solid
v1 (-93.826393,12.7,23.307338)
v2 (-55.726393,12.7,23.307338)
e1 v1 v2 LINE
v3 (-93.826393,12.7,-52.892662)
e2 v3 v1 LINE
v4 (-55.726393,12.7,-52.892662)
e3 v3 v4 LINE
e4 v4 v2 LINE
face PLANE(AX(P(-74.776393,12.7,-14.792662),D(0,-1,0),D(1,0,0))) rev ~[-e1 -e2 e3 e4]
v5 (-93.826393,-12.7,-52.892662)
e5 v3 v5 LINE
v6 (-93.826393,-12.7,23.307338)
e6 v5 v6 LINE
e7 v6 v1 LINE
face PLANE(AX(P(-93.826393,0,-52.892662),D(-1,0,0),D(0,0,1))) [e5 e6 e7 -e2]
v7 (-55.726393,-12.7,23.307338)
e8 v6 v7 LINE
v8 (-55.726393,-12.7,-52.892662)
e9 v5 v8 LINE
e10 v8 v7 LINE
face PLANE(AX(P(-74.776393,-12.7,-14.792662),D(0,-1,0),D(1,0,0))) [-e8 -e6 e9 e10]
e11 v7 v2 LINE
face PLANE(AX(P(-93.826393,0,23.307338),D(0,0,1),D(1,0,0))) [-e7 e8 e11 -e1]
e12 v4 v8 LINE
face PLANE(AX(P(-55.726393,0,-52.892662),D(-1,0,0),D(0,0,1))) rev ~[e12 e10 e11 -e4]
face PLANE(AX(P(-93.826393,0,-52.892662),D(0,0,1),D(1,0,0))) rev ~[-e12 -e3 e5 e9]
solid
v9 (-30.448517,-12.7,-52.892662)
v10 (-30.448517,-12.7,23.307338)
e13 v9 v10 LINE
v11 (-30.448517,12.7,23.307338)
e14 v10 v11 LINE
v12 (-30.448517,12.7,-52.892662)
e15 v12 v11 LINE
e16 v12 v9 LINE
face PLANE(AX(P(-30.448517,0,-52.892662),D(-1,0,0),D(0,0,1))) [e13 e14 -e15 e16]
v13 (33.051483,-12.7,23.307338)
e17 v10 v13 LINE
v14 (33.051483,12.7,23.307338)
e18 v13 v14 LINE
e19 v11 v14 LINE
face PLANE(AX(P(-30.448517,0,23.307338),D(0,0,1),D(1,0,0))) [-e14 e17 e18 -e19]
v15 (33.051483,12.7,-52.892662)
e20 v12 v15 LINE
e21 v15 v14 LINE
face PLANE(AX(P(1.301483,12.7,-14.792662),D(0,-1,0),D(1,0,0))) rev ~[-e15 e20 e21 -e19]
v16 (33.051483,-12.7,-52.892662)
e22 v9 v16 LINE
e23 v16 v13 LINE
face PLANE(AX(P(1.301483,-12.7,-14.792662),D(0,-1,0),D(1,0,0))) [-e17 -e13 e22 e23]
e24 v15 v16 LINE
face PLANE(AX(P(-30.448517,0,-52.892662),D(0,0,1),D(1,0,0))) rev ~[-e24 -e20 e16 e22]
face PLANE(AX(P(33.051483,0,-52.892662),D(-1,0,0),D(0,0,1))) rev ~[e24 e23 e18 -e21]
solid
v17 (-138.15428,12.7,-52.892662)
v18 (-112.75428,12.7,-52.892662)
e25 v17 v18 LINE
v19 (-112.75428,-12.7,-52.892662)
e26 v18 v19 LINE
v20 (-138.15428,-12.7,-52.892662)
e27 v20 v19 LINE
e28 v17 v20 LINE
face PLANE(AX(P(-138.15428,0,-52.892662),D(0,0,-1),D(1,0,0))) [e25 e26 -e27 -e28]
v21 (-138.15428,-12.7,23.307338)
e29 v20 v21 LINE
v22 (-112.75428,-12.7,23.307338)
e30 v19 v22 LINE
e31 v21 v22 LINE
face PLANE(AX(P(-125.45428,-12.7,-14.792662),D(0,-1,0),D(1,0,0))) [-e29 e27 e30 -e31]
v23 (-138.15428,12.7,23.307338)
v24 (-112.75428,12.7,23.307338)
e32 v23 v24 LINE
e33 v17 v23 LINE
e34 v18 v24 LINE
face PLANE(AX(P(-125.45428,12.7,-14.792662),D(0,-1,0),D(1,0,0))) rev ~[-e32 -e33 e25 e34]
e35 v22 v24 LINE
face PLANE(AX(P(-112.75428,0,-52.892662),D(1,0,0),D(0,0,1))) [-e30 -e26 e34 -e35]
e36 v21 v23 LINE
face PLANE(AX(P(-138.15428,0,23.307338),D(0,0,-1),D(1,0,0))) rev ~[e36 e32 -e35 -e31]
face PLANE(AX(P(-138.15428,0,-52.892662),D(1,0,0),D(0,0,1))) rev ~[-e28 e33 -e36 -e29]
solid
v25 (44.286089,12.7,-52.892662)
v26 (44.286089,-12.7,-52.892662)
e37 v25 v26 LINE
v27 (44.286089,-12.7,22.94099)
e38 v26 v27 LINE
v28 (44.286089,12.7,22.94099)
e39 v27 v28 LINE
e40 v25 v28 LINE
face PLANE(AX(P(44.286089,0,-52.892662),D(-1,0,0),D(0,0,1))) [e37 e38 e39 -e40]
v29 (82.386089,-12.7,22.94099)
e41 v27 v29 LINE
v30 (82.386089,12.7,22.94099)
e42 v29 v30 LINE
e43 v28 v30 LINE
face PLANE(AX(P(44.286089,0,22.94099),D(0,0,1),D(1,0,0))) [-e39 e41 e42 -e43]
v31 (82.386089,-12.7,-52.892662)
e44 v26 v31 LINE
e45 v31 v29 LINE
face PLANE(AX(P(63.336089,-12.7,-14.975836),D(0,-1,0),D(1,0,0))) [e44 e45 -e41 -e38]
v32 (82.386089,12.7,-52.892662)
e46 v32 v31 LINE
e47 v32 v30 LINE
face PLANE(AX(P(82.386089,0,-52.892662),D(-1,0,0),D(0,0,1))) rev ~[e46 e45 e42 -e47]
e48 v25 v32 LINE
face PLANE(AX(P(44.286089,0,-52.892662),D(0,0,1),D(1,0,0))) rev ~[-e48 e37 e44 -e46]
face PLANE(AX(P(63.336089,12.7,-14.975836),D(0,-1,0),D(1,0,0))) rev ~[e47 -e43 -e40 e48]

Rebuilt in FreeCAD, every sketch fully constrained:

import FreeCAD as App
import Part
import Sketcher
Q = App.Units.Quantity

doc = App.newDocument("Part")
params = doc.addObject("Spreadsheet::Sheet", "Params")
for row, (alias, value) in enumerate([
    ("sketch1_width", "1 in"),
    ("sketch1_height", "3 in"),
    ("sketch1_width2", "1.5 in"),
    ("sketch1_width3", "2.5 in"),
    ("pad1_length", "1 in"),
], start=1):
    params.set(f"A{row}", alias)
    params.set(f"B{row}", "=" + value)
    params.setAlias(f"B{row}", alias)

body = doc.addObject("PartDesign::Body", "Body")
body.AllowCompound = True

sketch1 = body.newObject("Sketcher::SketchObject", "Sketch")
sketch1.AttachmentSupport = (doc.getObject("XZ_Plane"), [""])
sketch1.MapMode = "FlatFace"
sketch1.addGeometry(Part.LineSegment(App.Vector(-94, 23, 0), App.Vector(-94, -53, 0)), False)
sketch1.addGeometry(Part.LineSegment(App.Vector(-94, -53, 0), App.Vector(-56, -53, 0)), False)
sketch1.addGeometry(Part.LineSegment(App.Vector(-56, -53, 0), App.Vector(-56, 23, 0)), False)
sketch1.addGeometry(Part.LineSegment(App.Vector(-56, 23, 0), App.Vector(-94, 23, 0)), False)
sketch1.addGeometry(Part.LineSegment(App.Vector(-30, 23, 0), App.Vector(-30, -53, 0)), False)
sketch1.addGeometry(Part.LineSegment(App.Vector(-30, -53, 0), App.Vector(33, -53, 0)), False)
sketch1.addGeometry(Part.LineSegment(App.Vector(33, -53, 0), App.Vector(33, 23, 0)), False)
sketch1.addGeometry(Part.LineSegment(App.Vector(33, 23, 0), App.Vector(-30, 23, 0)), False)
sketch1.addGeometry(Part.LineSegment(App.Vector(44, 23, 0), App.Vector(44, -53, 0)), False)
sketch1.addGeometry(Part.LineSegment(App.Vector(44, -53, 0), App.Vector(82, -53, 0)), False)
sketch1.addGeometry(Part.LineSegment(App.Vector(82, -53, 0), App.Vector(82, 23, 0)), False)
sketch1.addGeometry(Part.LineSegment(App.Vector(82, 23, 0), App.Vector(44, 23, 0)), False)
sketch1.addGeometry(Part.LineSegment(App.Vector(-138, 23, 0), App.Vector(-138, -53, 0)), False)
sketch1.addGeometry(Part.LineSegment(App.Vector(-138, -53, 0), App.Vector(-113, -53, 0)), False)
sketch1.addGeometry(Part.LineSegment(App.Vector(-113, -53, 0), App.Vector(-113, 23, 0)), False)
sketch1.addGeometry(Part.LineSegment(App.Vector(-113, 23, 0), App.Vector(-138, 23, 0)), False)
sketch1.addConstraint(Sketcher.Constraint("Coincident", 0, 2, 1, 1))
sketch1.addConstraint(Sketcher.Constraint("Coincident", 1, 2, 2, 1))
sketch1.addConstraint(Sketcher.Constraint("Coincident", 2, 2, 3, 1))
sketch1.addConstraint(Sketcher.Constraint("Coincident", 3, 2, 0, 1))
sketch1.addConstraint(Sketcher.Constraint("Coincident", 4, 2, 5, 1))
sketch1.addConstraint(Sketcher.Constraint("Coincident", 5, 2, 6, 1))
sketch1.addConstraint(Sketcher.Constraint("Coincident", 6, 2, 7, 1))
sketch1.addConstraint(Sketcher.Constraint("Coincident", 7, 2, 4, 1))
sketch1.addConstraint(Sketcher.Constraint("Coincident", 8, 2, 9, 1))
sketch1.addConstraint(Sketcher.Constraint("Coincident", 9, 2, 10, 1))
sketch1.addConstraint(Sketcher.Constraint("Coincident", 10, 2, 11, 1))
sketch1.addConstraint(Sketcher.Constraint("Coincident", 11, 2, 8, 1))
sketch1.addConstraint(Sketcher.Constraint("Coincident", 12, 2, 13, 1))
sketch1.addConstraint(Sketcher.Constraint("Coincident", 13, 2, 14, 1))
sketch1.addConstraint(Sketcher.Constraint("Coincident", 14, 2, 15, 1))
sketch1.addConstraint(Sketcher.Constraint("Coincident", 15, 2, 12, 1))
sketch1.addConstraint(Sketcher.Constraint("Vertical", 0))
sketch1.addConstraint(Sketcher.Constraint("Horizontal", 1))
sketch1.addConstraint(Sketcher.Constraint("Vertical", 2))
sketch1.addConstraint(Sketcher.Constraint("Horizontal", 3))
sketch1.addConstraint(Sketcher.Constraint("Vertical", 4))
sketch1.addConstraint(Sketcher.Constraint("Horizontal", 5))
sketch1.addConstraint(Sketcher.Constraint("Vertical", 6))
sketch1.addConstraint(Sketcher.Constraint("Horizontal", 7))
sketch1.addConstraint(Sketcher.Constraint("Vertical", 8))
sketch1.addConstraint(Sketcher.Constraint("Horizontal", 9))
sketch1.addConstraint(Sketcher.Constraint("Vertical", 10))
sketch1.addConstraint(Sketcher.Constraint("Horizontal", 11))
sketch1.addConstraint(Sketcher.Constraint("Vertical", 12))
sketch1.addConstraint(Sketcher.Constraint("Horizontal", 13))
sketch1.addConstraint(Sketcher.Constraint("Vertical", 14))
sketch1.addConstraint(Sketcher.Constraint("Horizontal", 15))
sketch1.addConstraint(Sketcher.Constraint("Horizontal", 1, 2, 4, 2))
sketch1.addConstraint(Sketcher.Constraint("Horizontal", 3, 2, 6, 2))
sketch1.addConstraint(Sketcher.Constraint("Horizontal", 5, 2, 8, 2))
sketch1.addConstraint(Sketcher.Constraint("Horizontal", 9, 2, 12, 2))
sketch1.addConstraint(Sketcher.Constraint("Horizontal", 7, 2, 14, 2))
sketch1.addConstraint(Sketcher.Constraint("Equal", 3, 9))
sketch1.addConstraint(Sketcher.Constraint("DistanceX", 13, 1, 13, 2, Q("1 in")))
sketch1.addConstraint(Sketcher.Constraint("DistanceY", 0, 2, 0, 1, Q("3 in")))
sketch1.addConstraint(Sketcher.Constraint("DistanceX", 1, 1, 1, 2, Q("1.5 in")))
sketch1.addConstraint(Sketcher.Constraint("DistanceX", 5, 1, 5, 2, Q("2.5 in")))
sketch1.addConstraint(Sketcher.Constraint("DistanceY", 8, 2, 8, 1, 75.833652))
sketch1.addConstraint(Sketcher.Constraint("DistanceY", -1, 1, 2, 2, 23.307338))
sketch1.addConstraint(Sketcher.Constraint("DistanceX", -1, 1, 8, 2, 44.286089))
sketch1.addConstraint(Sketcher.Constraint("DistanceX", 12, 2, -1, 1, 138.15428))
sketch1.addConstraint(Sketcher.Constraint("DistanceX", 0, 2, -1, 1, 93.826393))
sketch1.addConstraint(Sketcher.Constraint("DistanceX", 4, 2, -1, 1, 30.448517))
sketch1.setExpression("Constraints[38]", "Params.sketch1_width")
sketch1.setExpression("Constraints[39]", "Params.sketch1_height")
sketch1.setExpression("Constraints[40]", "Params.sketch1_width2")
sketch1.setExpression("Constraints[41]", "Params.sketch1_width3")
pad1 = body.newObject("PartDesign::Pad", "Pad")
pad1.Profile = sketch1
pad1.setExpression("Length", "Params.pad1_length")
pad1.Midplane = True

doc.recompute()
